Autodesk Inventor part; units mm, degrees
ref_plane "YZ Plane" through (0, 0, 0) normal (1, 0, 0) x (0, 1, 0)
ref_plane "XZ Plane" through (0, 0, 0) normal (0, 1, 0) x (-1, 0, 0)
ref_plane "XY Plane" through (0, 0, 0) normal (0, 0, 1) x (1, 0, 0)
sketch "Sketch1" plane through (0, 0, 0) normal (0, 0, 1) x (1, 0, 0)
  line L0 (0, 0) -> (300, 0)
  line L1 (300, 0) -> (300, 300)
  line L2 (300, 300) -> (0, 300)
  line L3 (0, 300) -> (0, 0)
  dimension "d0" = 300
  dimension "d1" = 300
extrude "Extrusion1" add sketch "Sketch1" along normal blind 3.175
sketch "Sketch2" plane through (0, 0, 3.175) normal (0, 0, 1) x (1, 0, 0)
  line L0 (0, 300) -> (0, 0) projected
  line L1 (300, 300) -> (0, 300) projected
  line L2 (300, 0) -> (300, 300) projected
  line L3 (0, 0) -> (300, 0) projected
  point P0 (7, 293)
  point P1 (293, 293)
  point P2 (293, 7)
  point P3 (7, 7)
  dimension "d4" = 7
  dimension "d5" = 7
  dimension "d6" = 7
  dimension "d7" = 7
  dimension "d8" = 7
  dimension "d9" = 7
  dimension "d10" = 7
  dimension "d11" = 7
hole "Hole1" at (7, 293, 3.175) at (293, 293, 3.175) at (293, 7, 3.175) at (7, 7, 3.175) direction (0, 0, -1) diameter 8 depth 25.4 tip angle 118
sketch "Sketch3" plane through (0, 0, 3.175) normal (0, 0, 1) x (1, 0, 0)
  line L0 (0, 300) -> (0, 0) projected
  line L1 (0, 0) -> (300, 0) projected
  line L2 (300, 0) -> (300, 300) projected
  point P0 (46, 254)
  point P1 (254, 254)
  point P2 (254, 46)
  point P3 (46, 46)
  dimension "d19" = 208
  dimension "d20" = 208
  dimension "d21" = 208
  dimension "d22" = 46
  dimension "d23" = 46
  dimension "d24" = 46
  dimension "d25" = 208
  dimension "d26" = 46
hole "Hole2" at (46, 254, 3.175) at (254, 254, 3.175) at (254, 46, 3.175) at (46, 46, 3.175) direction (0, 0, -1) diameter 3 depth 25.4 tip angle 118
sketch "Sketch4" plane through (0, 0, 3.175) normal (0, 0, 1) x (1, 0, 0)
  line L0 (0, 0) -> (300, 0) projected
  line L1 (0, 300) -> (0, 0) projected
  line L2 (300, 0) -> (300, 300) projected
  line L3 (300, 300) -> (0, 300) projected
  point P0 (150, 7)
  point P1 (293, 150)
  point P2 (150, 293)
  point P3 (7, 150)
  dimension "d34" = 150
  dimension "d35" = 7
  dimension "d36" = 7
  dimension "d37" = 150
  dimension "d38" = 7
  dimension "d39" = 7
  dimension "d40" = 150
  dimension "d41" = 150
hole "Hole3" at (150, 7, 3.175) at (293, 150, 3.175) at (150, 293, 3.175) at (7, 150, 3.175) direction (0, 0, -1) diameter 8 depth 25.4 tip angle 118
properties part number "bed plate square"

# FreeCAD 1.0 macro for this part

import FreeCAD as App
import Part
import Sketcher
from FreeCAD import Vector
Q = App.Units.Quantity


def add_polygon(sketch, points):
    """Adds a closed chain of lines whose ends are joined by coincident constraints."""
    first, n = sketch.GeometryCount, len(points)
    for a, b in zip(points, points[1:] + points[:1]):
        sketch.addGeometry(Part.LineSegment(App.Vector(*a, 0), App.Vector(*b, 0)), False)
    for i in range(n):
        sketch.addConstraint(Sketcher.Constraint("Coincident", first + i, 2, first + (i + 1) % n, 1))

doc = App.newDocument("Part")
body = doc.addObject("PartDesign::Body", "Body")

# Sketch on XY plane
sketch1 = body.newObject("Sketcher::SketchObject", "Sketch")
sketch1.AttachmentSupport = (doc.getObject("XY_Plane"), [""])
sketch1.MapMode = "FlatFace"
add_polygon(sketch1, [(0, 300), (0, 0), (300, 0), (300, 300)])  # lines 0-3
sketch1.addConstraint([
    Sketcher.Constraint("Vertical", 0),
    Sketcher.Constraint("Horizontal", 1),
    Sketcher.Constraint("Vertical", 2),
    Sketcher.Constraint("Horizontal", 3),
    Sketcher.Constraint("Coincident", 0, 2, -1, 1),
    Sketcher.Constraint("Equal", 3, 0),
    Sketcher.Constraint("DistanceX", 1, 1, 1, 2, Q("300 mm")),
])
pad1 = body.newObject("PartDesign::Pad", "Pad")
pad1.Profile = sketch1
pad1.Length = 3.175

# Sketch on XY plane
sketch2 = body.newObject("Sketcher::SketchObject", "Sketch001")
sketch2.AttachmentSupport = (doc.getObject("XY_Plane"), [""])
sketch2.MapMode = "FlatFace"
sketch2.AttachmentOffset = App.Placement(Vector(0, 0, 3.175), App.Rotation())
sketch2.addGeometry([
    Part.Circle(Vector(7, 293, 0), Vector(0, 0, 1), 4),
    Part.Circle(Vector(293, 293, 0), Vector(0, 0, 1), 4),
    Part.Circle(Vector(293, 7, 0), Vector(0, 0, 1), 4),
    Part.Circle(Vector(7, 7, 0), Vector(0, 0, 1), 4),
], False)
sketch2.addConstraint([
    Sketcher.Constraint("Equal", 0, 1),
    Sketcher.Constraint("Equal", 1, 2),
    Sketcher.Constraint("Equal", 2, 3),
    Sketcher.Constraint("Horizontal", 0, 3, 1, 3),
    Sketcher.Constraint("Horizontal", 2, 3, 3, 3),
    Sketcher.Constraint("Vertical", 1, 3, 2, 3),
    Sketcher.Constraint("Vertical", 0, 3, 3, 3),
    Sketcher.Constraint("Diameter", 0, Q("8 mm")),
    Sketcher.Constraint("DistanceX", -1, 1, 0, 3, Q("7 mm")),
    Sketcher.Constraint("DistanceY", -1, 1, 0, 3, Q("293 mm")),
    Sketcher.Constraint("DistanceX", -1, 1, 1, 3, Q("293 mm")),
    Sketcher.Constraint("DistanceY", -1, 1, 2, 3, Q("7 mm")),
])
doc.recompute()
hole = body.newObject("PartDesign::Hole", "Hole")
hole.Profile = sketch2
hole.ThreadType = "None"
hole.Diameter = 8
hole.DepthType = "Dimension"
hole.Depth = 25.4
hole.DrillPoint = "Angled"
hole.DrillPointAngle = 118

# Sketch on XY plane
sketch3 = body.newObject("Sketcher::SketchObject", "Sketch002")
sketch3.AttachmentSupport = (doc.getObject("XY_Plane"), [""])
sketch3.MapMode = "FlatFace"
sketch3.AttachmentOffset = App.Placement(Vector(0, 0, 3.175), App.Rotation())
sketch3.addGeometry([
    Part.Circle(Vector(46, 254, 0), Vector(0, 0, 1), 1.5),
    Part.Circle(Vector(254, 254, 0), Vector(0, 0, 1), 1.5),
    Part.Circle(Vector(254, 46, 0), Vector(0, 0, 1), 1.5),
    Part.Circle(Vector(46, 46, 0), Vector(0, 0, 1), 1.5),
], False)
sketch3.addConstraint([
    Sketcher.Constraint("Equal", 0, 1),
    Sketcher.Constraint("Equal", 1, 2),
    Sketcher.Constraint("Equal", 2, 3),
    Sketcher.Constraint("Horizontal", 0, 3, 1, 3),
    Sketcher.Constraint("Horizontal", 2, 3, 3, 3),
    Sketcher.Constraint("Vertical", 1, 3, 2, 3),
    Sketcher.Constraint("Vertical", 0, 3, 3, 3),
    Sketcher.Constraint("Diameter", 0, Q("3 mm")),
    Sketcher.Constraint("DistanceX", -1, 1, 0, 3, Q("46 mm")),
    Sketcher.Constraint("DistanceY", -1, 1, 0, 3, Q("254 mm")),
    Sketcher.Constraint("DistanceX", -1, 1, 1, 3, Q("254 mm")),
    Sketcher.Constraint("DistanceY", -1, 1, 2, 3, Q("46 mm")),
])
doc.recompute()
hole2 = body.newObject("PartDesign::Hole", "Hole001")
hole2.Profile = sketch3
hole2.ThreadType = "None"
hole2.Diameter = 3
hole2.DepthType = "Dimension"
hole2.Depth = 25.4
hole2.DrillPoint = "Angled"
hole2.DrillPointAngle = 118

# Sketch on XY plane
sketch4 = body.newObject("Sketcher::SketchObject", "Sketch003")
sketch4.AttachmentSupport = (doc.getObject("XY_Plane"), [""])
sketch4.MapMode = "FlatFace"
sketch4.AttachmentOffset = App.Placement(Vector(0, 0, 3.175), App.Rotation())
sketch4.addGeometry([
    Part.Circle(Vector(150, 7, 0), Vector(0, 0, 1), 4),
    Part.Circle(Vector(293, 150, 0), Vector(0, 0, 1), 4),
    Part.Circle(Vector(150, 293, 0), Vector(0, 0, 1), 4),
    Part.Circle(Vector(7, 150, 0), Vector(0, 0, 1), 4),
], False)
sketch4.addConstraint([
    Sketcher.Constraint("Equal", 0, 1),
    Sketcher.Constraint("Equal", 1, 2),
    Sketcher.Constraint("Equal", 2, 3),
    Sketcher.Constraint("Horizontal", 1, 3, 3, 3),
    Sketcher.Constraint("Vertical", 0, 3, 2, 3),
    Sketcher.Constraint("Diameter", 0, Q("8 mm")),
    Sketcher.Constraint("DistanceX", -1, 1, 0, 3, Q("150 mm")),
    Sketcher.Constraint("DistanceY", -1, 1, 0, 3, Q("7 mm")),
    Sketcher.Constraint("DistanceX", -1, 1, 1, 3, Q("293 mm")),
    Sketcher.Constraint("DistanceY", -1, 1, 1, 3, Q("150 mm")),
    Sketcher.Constraint("DistanceY", -1, 1, 2, 3, Q("293 mm")),
    Sketcher.Constraint("DistanceX", -1, 1, 3, 3, Q("7 mm")),
])
doc.recompute()
hole3 = body.newObject("PartDesign::Hole", "Hole002")
hole3.Profile = sketch4
hole3.ThreadType = "None"
hole3.Diameter = 8
hole3.DepthType = "Dimension"
hole3.Depth = 25.4
hole3.DrillPoint = "Angled"
hole3.DrillPointAngle = 118

doc.recompute()
